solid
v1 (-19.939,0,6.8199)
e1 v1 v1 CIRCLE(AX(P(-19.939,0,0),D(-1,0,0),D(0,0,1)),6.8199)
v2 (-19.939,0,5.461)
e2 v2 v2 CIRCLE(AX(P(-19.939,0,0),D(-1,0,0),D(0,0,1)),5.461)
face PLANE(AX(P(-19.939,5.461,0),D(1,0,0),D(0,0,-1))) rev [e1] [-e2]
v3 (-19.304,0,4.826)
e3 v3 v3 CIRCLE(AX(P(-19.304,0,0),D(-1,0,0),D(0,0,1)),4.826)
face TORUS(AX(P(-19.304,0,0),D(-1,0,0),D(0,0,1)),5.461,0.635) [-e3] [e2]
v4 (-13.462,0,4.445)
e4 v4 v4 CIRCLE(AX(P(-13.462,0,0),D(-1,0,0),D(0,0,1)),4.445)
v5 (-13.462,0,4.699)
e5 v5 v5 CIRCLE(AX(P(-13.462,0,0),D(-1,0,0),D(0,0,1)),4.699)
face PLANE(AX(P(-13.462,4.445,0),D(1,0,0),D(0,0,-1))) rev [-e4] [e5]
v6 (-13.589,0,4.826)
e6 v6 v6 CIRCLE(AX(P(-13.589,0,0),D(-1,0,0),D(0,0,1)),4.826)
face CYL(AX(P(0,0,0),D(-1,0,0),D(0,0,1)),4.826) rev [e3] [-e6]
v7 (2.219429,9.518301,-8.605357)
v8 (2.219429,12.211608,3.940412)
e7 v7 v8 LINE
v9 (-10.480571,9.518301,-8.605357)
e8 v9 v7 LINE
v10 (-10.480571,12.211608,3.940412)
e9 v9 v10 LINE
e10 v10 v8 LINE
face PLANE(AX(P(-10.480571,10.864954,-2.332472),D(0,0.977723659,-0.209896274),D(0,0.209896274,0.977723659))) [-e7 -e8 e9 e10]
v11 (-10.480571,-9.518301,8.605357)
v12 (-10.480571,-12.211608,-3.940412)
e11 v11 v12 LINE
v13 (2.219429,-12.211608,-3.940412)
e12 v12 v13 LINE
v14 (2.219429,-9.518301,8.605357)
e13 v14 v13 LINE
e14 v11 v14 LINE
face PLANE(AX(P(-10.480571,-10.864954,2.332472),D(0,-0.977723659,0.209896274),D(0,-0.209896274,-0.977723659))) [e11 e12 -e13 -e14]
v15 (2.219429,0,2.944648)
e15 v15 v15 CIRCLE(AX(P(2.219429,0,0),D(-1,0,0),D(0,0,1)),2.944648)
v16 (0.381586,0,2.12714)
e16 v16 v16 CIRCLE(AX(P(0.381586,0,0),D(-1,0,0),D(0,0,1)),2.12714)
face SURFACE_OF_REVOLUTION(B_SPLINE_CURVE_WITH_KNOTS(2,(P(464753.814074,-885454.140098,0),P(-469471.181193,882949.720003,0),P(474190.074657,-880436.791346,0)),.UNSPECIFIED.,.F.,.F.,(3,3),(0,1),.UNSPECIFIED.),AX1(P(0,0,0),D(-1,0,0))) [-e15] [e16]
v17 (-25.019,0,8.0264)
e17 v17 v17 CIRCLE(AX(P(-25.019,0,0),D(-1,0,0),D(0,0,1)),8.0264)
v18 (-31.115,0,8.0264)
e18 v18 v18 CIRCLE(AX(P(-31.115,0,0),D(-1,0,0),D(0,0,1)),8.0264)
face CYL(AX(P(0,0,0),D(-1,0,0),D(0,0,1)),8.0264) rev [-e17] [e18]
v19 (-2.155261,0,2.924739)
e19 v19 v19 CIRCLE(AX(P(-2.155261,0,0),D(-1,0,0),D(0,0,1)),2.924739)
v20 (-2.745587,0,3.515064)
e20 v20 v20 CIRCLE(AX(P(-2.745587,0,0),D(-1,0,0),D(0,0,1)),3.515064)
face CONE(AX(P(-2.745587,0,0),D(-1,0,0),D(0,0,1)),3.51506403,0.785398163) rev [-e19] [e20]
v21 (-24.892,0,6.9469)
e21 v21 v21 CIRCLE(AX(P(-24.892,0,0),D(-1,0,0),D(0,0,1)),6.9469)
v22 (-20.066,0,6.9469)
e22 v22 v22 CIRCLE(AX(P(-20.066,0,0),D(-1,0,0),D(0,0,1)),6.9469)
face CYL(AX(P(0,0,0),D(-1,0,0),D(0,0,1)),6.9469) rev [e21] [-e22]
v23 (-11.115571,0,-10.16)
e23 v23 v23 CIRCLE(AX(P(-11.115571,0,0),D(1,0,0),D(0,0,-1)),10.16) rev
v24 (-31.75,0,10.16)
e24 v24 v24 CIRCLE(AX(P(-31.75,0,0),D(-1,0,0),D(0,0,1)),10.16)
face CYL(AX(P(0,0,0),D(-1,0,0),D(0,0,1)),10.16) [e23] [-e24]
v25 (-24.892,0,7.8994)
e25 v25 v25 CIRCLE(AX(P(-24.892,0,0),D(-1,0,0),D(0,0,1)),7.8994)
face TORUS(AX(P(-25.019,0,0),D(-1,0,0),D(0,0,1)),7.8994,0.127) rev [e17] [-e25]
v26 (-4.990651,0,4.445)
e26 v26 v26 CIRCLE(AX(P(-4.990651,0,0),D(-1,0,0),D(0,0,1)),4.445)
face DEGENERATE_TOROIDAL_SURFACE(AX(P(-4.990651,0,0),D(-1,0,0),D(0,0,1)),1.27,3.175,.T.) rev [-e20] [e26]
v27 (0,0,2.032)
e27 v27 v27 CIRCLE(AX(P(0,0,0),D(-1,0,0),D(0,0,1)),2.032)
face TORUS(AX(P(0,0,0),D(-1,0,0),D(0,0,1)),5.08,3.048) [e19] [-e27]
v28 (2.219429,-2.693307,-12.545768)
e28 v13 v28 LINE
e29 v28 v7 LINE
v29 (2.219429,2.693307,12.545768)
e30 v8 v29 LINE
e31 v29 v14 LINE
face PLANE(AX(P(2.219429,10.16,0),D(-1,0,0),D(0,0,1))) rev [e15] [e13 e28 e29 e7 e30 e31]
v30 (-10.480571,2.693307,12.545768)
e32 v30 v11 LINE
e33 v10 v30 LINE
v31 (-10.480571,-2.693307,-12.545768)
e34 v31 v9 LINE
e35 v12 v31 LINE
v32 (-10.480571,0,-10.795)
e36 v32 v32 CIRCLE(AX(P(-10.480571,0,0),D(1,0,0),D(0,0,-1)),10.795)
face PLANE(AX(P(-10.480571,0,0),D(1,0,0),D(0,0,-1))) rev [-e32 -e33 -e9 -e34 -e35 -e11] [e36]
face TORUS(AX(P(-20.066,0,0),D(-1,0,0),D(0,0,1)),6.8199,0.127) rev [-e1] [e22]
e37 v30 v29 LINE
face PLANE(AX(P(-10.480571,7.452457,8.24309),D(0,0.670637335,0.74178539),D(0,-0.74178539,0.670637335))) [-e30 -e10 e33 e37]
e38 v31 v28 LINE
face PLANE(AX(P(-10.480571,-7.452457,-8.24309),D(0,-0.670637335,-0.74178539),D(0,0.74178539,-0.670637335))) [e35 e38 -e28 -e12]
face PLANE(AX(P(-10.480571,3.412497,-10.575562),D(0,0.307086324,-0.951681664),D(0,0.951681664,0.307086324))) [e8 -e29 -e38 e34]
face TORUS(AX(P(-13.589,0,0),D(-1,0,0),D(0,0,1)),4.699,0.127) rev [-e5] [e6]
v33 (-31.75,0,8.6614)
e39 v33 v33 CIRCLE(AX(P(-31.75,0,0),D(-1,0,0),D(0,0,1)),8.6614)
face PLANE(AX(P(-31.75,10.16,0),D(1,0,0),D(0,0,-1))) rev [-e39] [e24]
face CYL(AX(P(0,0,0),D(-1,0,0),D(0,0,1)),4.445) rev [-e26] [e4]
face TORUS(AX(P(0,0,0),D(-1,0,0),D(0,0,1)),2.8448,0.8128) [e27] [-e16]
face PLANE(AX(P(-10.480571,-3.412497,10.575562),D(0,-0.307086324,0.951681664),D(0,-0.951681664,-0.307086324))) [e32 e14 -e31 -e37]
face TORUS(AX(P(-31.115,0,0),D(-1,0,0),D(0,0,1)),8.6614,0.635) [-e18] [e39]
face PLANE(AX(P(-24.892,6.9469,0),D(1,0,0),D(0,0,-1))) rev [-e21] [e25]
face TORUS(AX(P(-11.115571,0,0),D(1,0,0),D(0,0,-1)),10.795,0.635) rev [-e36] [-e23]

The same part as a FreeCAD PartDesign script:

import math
import FreeCAD as App
import Part
import Sketcher
Q = App.Units.Quantity


def edges_at(feature, points):
    """Names of the edges that pass closest to the given points."""
    edges = feature.Shape.Edges
    near = lambda p: min(range(len(edges)), key=lambda i: edges[i].distToShape(Part.Vertex(*p))[0])
    return sorted({f"Edge{near(p) + 1}" for p in points})


def add_polygon(sketch, points):
    """Adds a closed chain of lines whose ends are joined by coincident constraints."""
    first, n = sketch.GeometryCount, len(points)
    for a, b in zip(points, points[1:] + points[:1]):
        sketch.addGeometry(Part.LineSegment(App.Vector(*a, 0), App.Vector(*b, 0)), False)
    for i in range(n):
        sketch.addConstraint(Sketcher.Constraint("Coincident", first + i, 2, first + (i + 1) % n, 1))

doc = App.newDocument("Part")
params = doc.addObject("Spreadsheet::Sheet", "Params")
for row, (alias, value) in enumerate([
    ("sketch1_radius", "0.12 in"),
    ("sketch1_radius2", "0.032 in"),
    ("sketch1_radius3", "0.025 in"),
    ("sketch1_radius4", "0.005 in"),
    ("sketch1_radius5", "0.005 in"),
    ("revolution_angle", "360 deg"),
    ("sketch2_diameter", "0.8 in"),
    ("pad1_length", "0.5 in"),
    ("fillet_radius", "0.025 in"),
], start=1):
    params.set(f"A{row}", alias)
    params.set(f"B{row}", "=" + value)
    params.setAlias(f"B{row}", alias)

body = doc.addObject("PartDesign::Body", "Body")

sketch1 = body.newObject("Sketcher::SketchObject", "Sketch")
sketch1.AttachmentSupport = (doc.getObject("XY_Plane"), [""])
sketch1.MapMode = "FlatFace"
sketch1.addGeometry([
    Part.LineSegment(App.Vector(-2.745587, 3.515064, 0), App.Vector(-2.155261, 2.924739, 0)),
    Part.ArcOfCircle(Part.Circle(App.Vector(0, 5.08, 0), App.Vector(0, 0, 1), 3.048), math.radians(-135), math.radians(-90)),
    Part.ArcOfCircle(Part.Circle(App.Vector(0, 2.8448, 0), App.Vector(0, 0, 1), 0.8128), math.radians(-90), math.radians(-62)),
    Part.BSplineCurve([App.Vector(2.219429, 2.944648, 0), App.Vector(1.267411, 2.598141, 0), App.Vector(0.381586, 2.12714, 0)], [3, 3], [0, 1], False, 2, [1, 1, 1], False),
    Part.LineSegment(App.Vector(2.219429, 2.944648, 0), App.Vector(2.219429, 10.16, 0)),
    Part.LineSegment(App.Vector(2.219429, 10.16, 0), App.Vector(-31.75, 10.16, 0)),
    Part.LineSegment(App.Vector(-31.75, 10.16, 0), App.Vector(-31.75, 8.6614, 0)),
    Part.ArcOfCircle(Part.Circle(App.Vector(-31.115, 8.6614, 0), App.Vector(0, 0, 1), 0.635), math.radians(180), math.radians(270)),
    Part.LineSegment(App.Vector(-31.115, 8.0264, 0), App.Vector(-25.019, 8.0264, 0)),
    Part.ArcOfCircle(Part.Circle(App.Vector(-25.019, 7.8994, 0), App.Vector(0, 0, 1), 0.127), math.radians(0), math.radians(90)),
    Part.LineSegment(App.Vector(-24.892, 7.8994, 0), App.Vector(-24.892, 6.9469, 0)),
    Part.LineSegment(App.Vector(-24.892, 6.9469, 0), App.Vector(-20.066, 6.9469, 0)),
    Part.ArcOfCircle(Part.Circle(App.Vector(-20.066, 6.8199, 0), App.Vector(0, 0, 1), 0.127), math.radians(0), math.radians(90)),
    Part.LineSegment(App.Vector(-19.939, 6.8199, 0), App.Vector(-19.939, 5.461, 0)),
    Part.ArcOfCircle(Part.Circle(App.Vector(-19.304, 5.461, 0), App.Vector(0, 0, 1), 0.635), math.radians(180), math.radians(270)),
    Part.LineSegment(App.Vector(-19.304, 4.826, 0), App.Vector(-13.589, 4.826, 0)),
    Part.ArcOfCircle(Part.Circle(App.Vector(-13.589, 4.699, 0), App.Vector(0, 0, 1), 0.127), math.radians(0), math.radians(90)),
    Part.LineSegment(App.Vector(-13.462, 4.699, 0), App.Vector(-13.462, 4.445, 0)),
    Part.LineSegment(App.Vector(-13.462, 4.445, 0), App.Vector(-4.990651, 4.445, 0)),
    Part.ArcOfCircle(Part.Circle(App.Vector(-4.990651, 1.27, 0), App.Vector(0, 0, 1), 3.175), math.radians(45), math.radians(90)),
], False)
sketch1.addConstraint([
    Sketcher.Constraint("Block", 3),
    Sketcher.Constraint("Coincident", 0, 2, 1, 1),
    Sketcher.Constraint("Coincident", 1, 2, 2, 1),
    Sketcher.Constraint("Coincident", 2, 2, 3, 2),
    Sketcher.Constraint("Coincident", 3, 1, 4, 1),
    Sketcher.Constraint("Coincident", 4, 2, 5, 1),
    Sketcher.Constraint("Coincident", 5, 2, 6, 1),
    Sketcher.Constraint("Coincident", 6, 2, 7, 1),
    Sketcher.Constraint("Coincident", 7, 2, 8, 1),
    Sketcher.Constraint("Coincident", 8, 2, 9, 2),
    Sketcher.Constraint("Coincident", 9, 1, 10, 1),
    Sketcher.Constraint("Coincident", 10, 2, 11, 1),
    Sketcher.Constraint("Coincident", 11, 2, 12, 2),
    Sketcher.Constraint("Coincident", 12, 1, 13, 1),
    Sketcher.Constraint("Coincident", 13, 2, 14, 1),
    Sketcher.Constraint("Coincident", 14, 2, 15, 1),
    Sketcher.Constraint("Coincident", 15, 2, 16, 2),
    Sketcher.Constraint("Coincident", 16, 1, 17, 1),
    Sketcher.Constraint("Coincident", 17, 2, 18, 1),
    Sketcher.Constraint("Coincident", 18, 2, 19, 2),
    Sketcher.Constraint("Coincident", 19, 1, 0, 1),
    Sketcher.Constraint("Vertical", 4),
    Sketcher.Constraint("Horizontal", 5),
    Sketcher.Constraint("Vertical", 6),
    Sketcher.Constraint("Horizontal", 8),
    Sketcher.Constraint("Vertical", 10),
    Sketcher.Constraint("Horizontal", 11),
    Sketcher.Constraint("Vertical", 13),
    Sketcher.Constraint("Horizontal", 15),
    Sketcher.Constraint("Vertical", 17),
    Sketcher.Constraint("Horizontal", 18),
    Sketcher.Constraint("PointOnObject", 1, 3, -2),
    Sketcher.Constraint("PointOnObject", 2, 3, -2),
    Sketcher.Constraint("PointOnObject", 1, 2, -2),
    Sketcher.Constraint("Radius", 1, Q("0.12 in")),
    Sketcher.Constraint("Radius", 2, Q("0.032 in")),
    Sketcher.Constraint("Radius", 7, Q("0.025 in")),
    Sketcher.Constraint("Radius", 9, Q("0.005 in")),
    Sketcher.Constraint("Radius", 12, Q("0.005 in")),
    Sketcher.Constraint("Radius", 14, Q("0.025 in")),
    Sketcher.Constraint("Radius", 16, Q("0.005 in")),
    Sketcher.Constraint("Radius", 19, Q("0.125 in")),
    Sketcher.Constraint("DistanceX", 8, 1, 8, 2, Q("0.24 in")),
    Sketcher.Constraint("DistanceX", 11, 1, 11, 2, Q("0.19 in")),
    Sketcher.Constraint("DistanceY", 17, 2, 17, 1, Q("0.01 in")),
    Sketcher.Constraint("DistanceY", -1, 1, 4, 2, Q("0.4 in")),
    Sketcher.Constraint("DistanceX", 15, 1, 15, 2, Q("0.225 in")),
    Sketcher.Constraint("DistanceY", 6, 2, 6, 1, Q("0.059 in")),
    Sketcher.Constraint("DistanceX", 12, 3, -1, 1, Q("0.79 in")),
    Sketcher.Constraint("DistanceY", -1, 1, 19, 3, Q("0.05 in")),
    Sketcher.Constraint("DistanceX", 5, 2, -1, 1, Q("1.25 in")),
    Sketcher.Constraint("DistanceX", 9, 1, -1, 1, Q("0.98 in")),
    Sketcher.Constraint("DistanceX", 14, 2, -1, 1, Q("0.76 in")),
    Sketcher.Constraint("DistanceY", -1, 1, 14, 2, Q("0.19 in")),
    Sketcher.Constraint("DistanceX", 16, 1, -1, 1, Q("0.53 in")),
    Sketcher.Constraint("DistanceY", 9, 3, 6, 2, Q("0.03 in")),
    Sketcher.Constraint("DistanceX", 7, 2, 9, 3, Q("0.24 in")),
    Sketcher.Constraint("DistanceY", 16, 1, 13, 2, Q("0.03 in")),
    Sketcher.Constraint("DistanceY", 10, 2, 10, 1, Q("0.0375 in")),
    Sketcher.Constraint("DistanceY", 13, 2, 13, 1, Q("0.0535 in")),
    Sketcher.Constraint("DistanceY", -1, 1, 9, 1, Q("0.311 in")),
    Sketcher.Constraint("DistanceX", 18, 1, 18, 2, Q("8.471349 mm")),
    Sketcher.Constraint("DistanceY", 2, 2, 0, 2, Q("0.797598 mm")),
    Sketcher.Constraint("DistanceX", 19, 3, -1, 1, Q("4.990651 mm")),
    Sketcher.Constraint("Distance", 0, Q("0.834846 mm")),
])
sketch1.setExpression("Constraints[34]", "Params.sketch1_radius")
sketch1.setExpression("Constraints[35]", "Params.sketch1_radius2")
sketch1.setExpression("Constraints[36]", "Params.sketch1_radius3")
sketch1.setExpression("Constraints[37]", "Params.sketch1_radius4")
sketch1.setExpression("Constraints[38]", "Params.sketch1_radius5")
revolution = body.newObject("PartDesign::Revolution", "Revolution")
revolution.Profile = sketch1
revolution.ReferenceAxis = (sketch1, ["H_Axis"])
revolution.setExpression("Angle", "Params.revolution_angle")

sketch2 = body.newObject("Sketcher::SketchObject", "Sketch001")
sketch2.AttachmentSupport = (doc.getObject("YZ_Plane"), [""])
sketch2.MapMode = "FlatFace"
sketch2.AttachmentOffset = App.Placement(App.Vector(0, 0, 2.219429), App.Rotation())
add_polygon(sketch2, [(-12.211608, -3.940412), (-2.693307, -12.545768), (9.518301, -8.605357), (12.211608, 3.940412), (2.693307, 12.545768), (-9.518301, 8.605357)])
sketch2.addGeometry(Part.Circle(App.Vector(0, 0, 0), App.Vector(0, 0, 1), 10.16), False)
sketch2.addConstraint([
    Sketcher.Constraint("Coincident", 6, 3, -1, 1),
    Sketcher.Constraint("Symmetric", 0, 2, 3, 2, -1, 1),
    Sketcher.Constraint("Symmetric", 1, 2, 4, 2, -1, 1),
    Sketcher.Constraint("Symmetric", 2, 2, 5, 2, -1, 1),
    Sketcher.Constraint("Equal", 0, 1),
    Sketcher.Constraint("Equal", 1, 2),
    Sketcher.Constraint("Diameter", 6, Q("0.8 in")),
    Sketcher.Constraint("DistanceX", -1, 1, 1, 2, Q("9.518301 mm")),
    Sketcher.Constraint("DistanceX", 3, 2, 2, 2, Q("9.518301 mm")),
    Sketcher.Constraint("Distance", 0, Q("12.83161 mm")),
    Sketcher.Constraint("DistanceY", 0, 2, -1, 1, Q("12.545768 mm")),
])
sketch2.setExpression("Constraints[12]", "Params.sketch2_diameter")
pad1 = body.newObject("PartDesign::Pad", "Pad")
pad1.Profile = sketch2
pad1.setExpression("Length", "Params.pad1_length")
pad1.Reversed = True
doc.recompute()

fillet = body.newObject("PartDesign::Fillet", "Fillet")
fillet.Base = (pad1, edges_at(pad1, [(-10.481, 0, -10.16)]))
fillet.setExpression("Radius", "Params.fillet_radius")

doc.recompute()
